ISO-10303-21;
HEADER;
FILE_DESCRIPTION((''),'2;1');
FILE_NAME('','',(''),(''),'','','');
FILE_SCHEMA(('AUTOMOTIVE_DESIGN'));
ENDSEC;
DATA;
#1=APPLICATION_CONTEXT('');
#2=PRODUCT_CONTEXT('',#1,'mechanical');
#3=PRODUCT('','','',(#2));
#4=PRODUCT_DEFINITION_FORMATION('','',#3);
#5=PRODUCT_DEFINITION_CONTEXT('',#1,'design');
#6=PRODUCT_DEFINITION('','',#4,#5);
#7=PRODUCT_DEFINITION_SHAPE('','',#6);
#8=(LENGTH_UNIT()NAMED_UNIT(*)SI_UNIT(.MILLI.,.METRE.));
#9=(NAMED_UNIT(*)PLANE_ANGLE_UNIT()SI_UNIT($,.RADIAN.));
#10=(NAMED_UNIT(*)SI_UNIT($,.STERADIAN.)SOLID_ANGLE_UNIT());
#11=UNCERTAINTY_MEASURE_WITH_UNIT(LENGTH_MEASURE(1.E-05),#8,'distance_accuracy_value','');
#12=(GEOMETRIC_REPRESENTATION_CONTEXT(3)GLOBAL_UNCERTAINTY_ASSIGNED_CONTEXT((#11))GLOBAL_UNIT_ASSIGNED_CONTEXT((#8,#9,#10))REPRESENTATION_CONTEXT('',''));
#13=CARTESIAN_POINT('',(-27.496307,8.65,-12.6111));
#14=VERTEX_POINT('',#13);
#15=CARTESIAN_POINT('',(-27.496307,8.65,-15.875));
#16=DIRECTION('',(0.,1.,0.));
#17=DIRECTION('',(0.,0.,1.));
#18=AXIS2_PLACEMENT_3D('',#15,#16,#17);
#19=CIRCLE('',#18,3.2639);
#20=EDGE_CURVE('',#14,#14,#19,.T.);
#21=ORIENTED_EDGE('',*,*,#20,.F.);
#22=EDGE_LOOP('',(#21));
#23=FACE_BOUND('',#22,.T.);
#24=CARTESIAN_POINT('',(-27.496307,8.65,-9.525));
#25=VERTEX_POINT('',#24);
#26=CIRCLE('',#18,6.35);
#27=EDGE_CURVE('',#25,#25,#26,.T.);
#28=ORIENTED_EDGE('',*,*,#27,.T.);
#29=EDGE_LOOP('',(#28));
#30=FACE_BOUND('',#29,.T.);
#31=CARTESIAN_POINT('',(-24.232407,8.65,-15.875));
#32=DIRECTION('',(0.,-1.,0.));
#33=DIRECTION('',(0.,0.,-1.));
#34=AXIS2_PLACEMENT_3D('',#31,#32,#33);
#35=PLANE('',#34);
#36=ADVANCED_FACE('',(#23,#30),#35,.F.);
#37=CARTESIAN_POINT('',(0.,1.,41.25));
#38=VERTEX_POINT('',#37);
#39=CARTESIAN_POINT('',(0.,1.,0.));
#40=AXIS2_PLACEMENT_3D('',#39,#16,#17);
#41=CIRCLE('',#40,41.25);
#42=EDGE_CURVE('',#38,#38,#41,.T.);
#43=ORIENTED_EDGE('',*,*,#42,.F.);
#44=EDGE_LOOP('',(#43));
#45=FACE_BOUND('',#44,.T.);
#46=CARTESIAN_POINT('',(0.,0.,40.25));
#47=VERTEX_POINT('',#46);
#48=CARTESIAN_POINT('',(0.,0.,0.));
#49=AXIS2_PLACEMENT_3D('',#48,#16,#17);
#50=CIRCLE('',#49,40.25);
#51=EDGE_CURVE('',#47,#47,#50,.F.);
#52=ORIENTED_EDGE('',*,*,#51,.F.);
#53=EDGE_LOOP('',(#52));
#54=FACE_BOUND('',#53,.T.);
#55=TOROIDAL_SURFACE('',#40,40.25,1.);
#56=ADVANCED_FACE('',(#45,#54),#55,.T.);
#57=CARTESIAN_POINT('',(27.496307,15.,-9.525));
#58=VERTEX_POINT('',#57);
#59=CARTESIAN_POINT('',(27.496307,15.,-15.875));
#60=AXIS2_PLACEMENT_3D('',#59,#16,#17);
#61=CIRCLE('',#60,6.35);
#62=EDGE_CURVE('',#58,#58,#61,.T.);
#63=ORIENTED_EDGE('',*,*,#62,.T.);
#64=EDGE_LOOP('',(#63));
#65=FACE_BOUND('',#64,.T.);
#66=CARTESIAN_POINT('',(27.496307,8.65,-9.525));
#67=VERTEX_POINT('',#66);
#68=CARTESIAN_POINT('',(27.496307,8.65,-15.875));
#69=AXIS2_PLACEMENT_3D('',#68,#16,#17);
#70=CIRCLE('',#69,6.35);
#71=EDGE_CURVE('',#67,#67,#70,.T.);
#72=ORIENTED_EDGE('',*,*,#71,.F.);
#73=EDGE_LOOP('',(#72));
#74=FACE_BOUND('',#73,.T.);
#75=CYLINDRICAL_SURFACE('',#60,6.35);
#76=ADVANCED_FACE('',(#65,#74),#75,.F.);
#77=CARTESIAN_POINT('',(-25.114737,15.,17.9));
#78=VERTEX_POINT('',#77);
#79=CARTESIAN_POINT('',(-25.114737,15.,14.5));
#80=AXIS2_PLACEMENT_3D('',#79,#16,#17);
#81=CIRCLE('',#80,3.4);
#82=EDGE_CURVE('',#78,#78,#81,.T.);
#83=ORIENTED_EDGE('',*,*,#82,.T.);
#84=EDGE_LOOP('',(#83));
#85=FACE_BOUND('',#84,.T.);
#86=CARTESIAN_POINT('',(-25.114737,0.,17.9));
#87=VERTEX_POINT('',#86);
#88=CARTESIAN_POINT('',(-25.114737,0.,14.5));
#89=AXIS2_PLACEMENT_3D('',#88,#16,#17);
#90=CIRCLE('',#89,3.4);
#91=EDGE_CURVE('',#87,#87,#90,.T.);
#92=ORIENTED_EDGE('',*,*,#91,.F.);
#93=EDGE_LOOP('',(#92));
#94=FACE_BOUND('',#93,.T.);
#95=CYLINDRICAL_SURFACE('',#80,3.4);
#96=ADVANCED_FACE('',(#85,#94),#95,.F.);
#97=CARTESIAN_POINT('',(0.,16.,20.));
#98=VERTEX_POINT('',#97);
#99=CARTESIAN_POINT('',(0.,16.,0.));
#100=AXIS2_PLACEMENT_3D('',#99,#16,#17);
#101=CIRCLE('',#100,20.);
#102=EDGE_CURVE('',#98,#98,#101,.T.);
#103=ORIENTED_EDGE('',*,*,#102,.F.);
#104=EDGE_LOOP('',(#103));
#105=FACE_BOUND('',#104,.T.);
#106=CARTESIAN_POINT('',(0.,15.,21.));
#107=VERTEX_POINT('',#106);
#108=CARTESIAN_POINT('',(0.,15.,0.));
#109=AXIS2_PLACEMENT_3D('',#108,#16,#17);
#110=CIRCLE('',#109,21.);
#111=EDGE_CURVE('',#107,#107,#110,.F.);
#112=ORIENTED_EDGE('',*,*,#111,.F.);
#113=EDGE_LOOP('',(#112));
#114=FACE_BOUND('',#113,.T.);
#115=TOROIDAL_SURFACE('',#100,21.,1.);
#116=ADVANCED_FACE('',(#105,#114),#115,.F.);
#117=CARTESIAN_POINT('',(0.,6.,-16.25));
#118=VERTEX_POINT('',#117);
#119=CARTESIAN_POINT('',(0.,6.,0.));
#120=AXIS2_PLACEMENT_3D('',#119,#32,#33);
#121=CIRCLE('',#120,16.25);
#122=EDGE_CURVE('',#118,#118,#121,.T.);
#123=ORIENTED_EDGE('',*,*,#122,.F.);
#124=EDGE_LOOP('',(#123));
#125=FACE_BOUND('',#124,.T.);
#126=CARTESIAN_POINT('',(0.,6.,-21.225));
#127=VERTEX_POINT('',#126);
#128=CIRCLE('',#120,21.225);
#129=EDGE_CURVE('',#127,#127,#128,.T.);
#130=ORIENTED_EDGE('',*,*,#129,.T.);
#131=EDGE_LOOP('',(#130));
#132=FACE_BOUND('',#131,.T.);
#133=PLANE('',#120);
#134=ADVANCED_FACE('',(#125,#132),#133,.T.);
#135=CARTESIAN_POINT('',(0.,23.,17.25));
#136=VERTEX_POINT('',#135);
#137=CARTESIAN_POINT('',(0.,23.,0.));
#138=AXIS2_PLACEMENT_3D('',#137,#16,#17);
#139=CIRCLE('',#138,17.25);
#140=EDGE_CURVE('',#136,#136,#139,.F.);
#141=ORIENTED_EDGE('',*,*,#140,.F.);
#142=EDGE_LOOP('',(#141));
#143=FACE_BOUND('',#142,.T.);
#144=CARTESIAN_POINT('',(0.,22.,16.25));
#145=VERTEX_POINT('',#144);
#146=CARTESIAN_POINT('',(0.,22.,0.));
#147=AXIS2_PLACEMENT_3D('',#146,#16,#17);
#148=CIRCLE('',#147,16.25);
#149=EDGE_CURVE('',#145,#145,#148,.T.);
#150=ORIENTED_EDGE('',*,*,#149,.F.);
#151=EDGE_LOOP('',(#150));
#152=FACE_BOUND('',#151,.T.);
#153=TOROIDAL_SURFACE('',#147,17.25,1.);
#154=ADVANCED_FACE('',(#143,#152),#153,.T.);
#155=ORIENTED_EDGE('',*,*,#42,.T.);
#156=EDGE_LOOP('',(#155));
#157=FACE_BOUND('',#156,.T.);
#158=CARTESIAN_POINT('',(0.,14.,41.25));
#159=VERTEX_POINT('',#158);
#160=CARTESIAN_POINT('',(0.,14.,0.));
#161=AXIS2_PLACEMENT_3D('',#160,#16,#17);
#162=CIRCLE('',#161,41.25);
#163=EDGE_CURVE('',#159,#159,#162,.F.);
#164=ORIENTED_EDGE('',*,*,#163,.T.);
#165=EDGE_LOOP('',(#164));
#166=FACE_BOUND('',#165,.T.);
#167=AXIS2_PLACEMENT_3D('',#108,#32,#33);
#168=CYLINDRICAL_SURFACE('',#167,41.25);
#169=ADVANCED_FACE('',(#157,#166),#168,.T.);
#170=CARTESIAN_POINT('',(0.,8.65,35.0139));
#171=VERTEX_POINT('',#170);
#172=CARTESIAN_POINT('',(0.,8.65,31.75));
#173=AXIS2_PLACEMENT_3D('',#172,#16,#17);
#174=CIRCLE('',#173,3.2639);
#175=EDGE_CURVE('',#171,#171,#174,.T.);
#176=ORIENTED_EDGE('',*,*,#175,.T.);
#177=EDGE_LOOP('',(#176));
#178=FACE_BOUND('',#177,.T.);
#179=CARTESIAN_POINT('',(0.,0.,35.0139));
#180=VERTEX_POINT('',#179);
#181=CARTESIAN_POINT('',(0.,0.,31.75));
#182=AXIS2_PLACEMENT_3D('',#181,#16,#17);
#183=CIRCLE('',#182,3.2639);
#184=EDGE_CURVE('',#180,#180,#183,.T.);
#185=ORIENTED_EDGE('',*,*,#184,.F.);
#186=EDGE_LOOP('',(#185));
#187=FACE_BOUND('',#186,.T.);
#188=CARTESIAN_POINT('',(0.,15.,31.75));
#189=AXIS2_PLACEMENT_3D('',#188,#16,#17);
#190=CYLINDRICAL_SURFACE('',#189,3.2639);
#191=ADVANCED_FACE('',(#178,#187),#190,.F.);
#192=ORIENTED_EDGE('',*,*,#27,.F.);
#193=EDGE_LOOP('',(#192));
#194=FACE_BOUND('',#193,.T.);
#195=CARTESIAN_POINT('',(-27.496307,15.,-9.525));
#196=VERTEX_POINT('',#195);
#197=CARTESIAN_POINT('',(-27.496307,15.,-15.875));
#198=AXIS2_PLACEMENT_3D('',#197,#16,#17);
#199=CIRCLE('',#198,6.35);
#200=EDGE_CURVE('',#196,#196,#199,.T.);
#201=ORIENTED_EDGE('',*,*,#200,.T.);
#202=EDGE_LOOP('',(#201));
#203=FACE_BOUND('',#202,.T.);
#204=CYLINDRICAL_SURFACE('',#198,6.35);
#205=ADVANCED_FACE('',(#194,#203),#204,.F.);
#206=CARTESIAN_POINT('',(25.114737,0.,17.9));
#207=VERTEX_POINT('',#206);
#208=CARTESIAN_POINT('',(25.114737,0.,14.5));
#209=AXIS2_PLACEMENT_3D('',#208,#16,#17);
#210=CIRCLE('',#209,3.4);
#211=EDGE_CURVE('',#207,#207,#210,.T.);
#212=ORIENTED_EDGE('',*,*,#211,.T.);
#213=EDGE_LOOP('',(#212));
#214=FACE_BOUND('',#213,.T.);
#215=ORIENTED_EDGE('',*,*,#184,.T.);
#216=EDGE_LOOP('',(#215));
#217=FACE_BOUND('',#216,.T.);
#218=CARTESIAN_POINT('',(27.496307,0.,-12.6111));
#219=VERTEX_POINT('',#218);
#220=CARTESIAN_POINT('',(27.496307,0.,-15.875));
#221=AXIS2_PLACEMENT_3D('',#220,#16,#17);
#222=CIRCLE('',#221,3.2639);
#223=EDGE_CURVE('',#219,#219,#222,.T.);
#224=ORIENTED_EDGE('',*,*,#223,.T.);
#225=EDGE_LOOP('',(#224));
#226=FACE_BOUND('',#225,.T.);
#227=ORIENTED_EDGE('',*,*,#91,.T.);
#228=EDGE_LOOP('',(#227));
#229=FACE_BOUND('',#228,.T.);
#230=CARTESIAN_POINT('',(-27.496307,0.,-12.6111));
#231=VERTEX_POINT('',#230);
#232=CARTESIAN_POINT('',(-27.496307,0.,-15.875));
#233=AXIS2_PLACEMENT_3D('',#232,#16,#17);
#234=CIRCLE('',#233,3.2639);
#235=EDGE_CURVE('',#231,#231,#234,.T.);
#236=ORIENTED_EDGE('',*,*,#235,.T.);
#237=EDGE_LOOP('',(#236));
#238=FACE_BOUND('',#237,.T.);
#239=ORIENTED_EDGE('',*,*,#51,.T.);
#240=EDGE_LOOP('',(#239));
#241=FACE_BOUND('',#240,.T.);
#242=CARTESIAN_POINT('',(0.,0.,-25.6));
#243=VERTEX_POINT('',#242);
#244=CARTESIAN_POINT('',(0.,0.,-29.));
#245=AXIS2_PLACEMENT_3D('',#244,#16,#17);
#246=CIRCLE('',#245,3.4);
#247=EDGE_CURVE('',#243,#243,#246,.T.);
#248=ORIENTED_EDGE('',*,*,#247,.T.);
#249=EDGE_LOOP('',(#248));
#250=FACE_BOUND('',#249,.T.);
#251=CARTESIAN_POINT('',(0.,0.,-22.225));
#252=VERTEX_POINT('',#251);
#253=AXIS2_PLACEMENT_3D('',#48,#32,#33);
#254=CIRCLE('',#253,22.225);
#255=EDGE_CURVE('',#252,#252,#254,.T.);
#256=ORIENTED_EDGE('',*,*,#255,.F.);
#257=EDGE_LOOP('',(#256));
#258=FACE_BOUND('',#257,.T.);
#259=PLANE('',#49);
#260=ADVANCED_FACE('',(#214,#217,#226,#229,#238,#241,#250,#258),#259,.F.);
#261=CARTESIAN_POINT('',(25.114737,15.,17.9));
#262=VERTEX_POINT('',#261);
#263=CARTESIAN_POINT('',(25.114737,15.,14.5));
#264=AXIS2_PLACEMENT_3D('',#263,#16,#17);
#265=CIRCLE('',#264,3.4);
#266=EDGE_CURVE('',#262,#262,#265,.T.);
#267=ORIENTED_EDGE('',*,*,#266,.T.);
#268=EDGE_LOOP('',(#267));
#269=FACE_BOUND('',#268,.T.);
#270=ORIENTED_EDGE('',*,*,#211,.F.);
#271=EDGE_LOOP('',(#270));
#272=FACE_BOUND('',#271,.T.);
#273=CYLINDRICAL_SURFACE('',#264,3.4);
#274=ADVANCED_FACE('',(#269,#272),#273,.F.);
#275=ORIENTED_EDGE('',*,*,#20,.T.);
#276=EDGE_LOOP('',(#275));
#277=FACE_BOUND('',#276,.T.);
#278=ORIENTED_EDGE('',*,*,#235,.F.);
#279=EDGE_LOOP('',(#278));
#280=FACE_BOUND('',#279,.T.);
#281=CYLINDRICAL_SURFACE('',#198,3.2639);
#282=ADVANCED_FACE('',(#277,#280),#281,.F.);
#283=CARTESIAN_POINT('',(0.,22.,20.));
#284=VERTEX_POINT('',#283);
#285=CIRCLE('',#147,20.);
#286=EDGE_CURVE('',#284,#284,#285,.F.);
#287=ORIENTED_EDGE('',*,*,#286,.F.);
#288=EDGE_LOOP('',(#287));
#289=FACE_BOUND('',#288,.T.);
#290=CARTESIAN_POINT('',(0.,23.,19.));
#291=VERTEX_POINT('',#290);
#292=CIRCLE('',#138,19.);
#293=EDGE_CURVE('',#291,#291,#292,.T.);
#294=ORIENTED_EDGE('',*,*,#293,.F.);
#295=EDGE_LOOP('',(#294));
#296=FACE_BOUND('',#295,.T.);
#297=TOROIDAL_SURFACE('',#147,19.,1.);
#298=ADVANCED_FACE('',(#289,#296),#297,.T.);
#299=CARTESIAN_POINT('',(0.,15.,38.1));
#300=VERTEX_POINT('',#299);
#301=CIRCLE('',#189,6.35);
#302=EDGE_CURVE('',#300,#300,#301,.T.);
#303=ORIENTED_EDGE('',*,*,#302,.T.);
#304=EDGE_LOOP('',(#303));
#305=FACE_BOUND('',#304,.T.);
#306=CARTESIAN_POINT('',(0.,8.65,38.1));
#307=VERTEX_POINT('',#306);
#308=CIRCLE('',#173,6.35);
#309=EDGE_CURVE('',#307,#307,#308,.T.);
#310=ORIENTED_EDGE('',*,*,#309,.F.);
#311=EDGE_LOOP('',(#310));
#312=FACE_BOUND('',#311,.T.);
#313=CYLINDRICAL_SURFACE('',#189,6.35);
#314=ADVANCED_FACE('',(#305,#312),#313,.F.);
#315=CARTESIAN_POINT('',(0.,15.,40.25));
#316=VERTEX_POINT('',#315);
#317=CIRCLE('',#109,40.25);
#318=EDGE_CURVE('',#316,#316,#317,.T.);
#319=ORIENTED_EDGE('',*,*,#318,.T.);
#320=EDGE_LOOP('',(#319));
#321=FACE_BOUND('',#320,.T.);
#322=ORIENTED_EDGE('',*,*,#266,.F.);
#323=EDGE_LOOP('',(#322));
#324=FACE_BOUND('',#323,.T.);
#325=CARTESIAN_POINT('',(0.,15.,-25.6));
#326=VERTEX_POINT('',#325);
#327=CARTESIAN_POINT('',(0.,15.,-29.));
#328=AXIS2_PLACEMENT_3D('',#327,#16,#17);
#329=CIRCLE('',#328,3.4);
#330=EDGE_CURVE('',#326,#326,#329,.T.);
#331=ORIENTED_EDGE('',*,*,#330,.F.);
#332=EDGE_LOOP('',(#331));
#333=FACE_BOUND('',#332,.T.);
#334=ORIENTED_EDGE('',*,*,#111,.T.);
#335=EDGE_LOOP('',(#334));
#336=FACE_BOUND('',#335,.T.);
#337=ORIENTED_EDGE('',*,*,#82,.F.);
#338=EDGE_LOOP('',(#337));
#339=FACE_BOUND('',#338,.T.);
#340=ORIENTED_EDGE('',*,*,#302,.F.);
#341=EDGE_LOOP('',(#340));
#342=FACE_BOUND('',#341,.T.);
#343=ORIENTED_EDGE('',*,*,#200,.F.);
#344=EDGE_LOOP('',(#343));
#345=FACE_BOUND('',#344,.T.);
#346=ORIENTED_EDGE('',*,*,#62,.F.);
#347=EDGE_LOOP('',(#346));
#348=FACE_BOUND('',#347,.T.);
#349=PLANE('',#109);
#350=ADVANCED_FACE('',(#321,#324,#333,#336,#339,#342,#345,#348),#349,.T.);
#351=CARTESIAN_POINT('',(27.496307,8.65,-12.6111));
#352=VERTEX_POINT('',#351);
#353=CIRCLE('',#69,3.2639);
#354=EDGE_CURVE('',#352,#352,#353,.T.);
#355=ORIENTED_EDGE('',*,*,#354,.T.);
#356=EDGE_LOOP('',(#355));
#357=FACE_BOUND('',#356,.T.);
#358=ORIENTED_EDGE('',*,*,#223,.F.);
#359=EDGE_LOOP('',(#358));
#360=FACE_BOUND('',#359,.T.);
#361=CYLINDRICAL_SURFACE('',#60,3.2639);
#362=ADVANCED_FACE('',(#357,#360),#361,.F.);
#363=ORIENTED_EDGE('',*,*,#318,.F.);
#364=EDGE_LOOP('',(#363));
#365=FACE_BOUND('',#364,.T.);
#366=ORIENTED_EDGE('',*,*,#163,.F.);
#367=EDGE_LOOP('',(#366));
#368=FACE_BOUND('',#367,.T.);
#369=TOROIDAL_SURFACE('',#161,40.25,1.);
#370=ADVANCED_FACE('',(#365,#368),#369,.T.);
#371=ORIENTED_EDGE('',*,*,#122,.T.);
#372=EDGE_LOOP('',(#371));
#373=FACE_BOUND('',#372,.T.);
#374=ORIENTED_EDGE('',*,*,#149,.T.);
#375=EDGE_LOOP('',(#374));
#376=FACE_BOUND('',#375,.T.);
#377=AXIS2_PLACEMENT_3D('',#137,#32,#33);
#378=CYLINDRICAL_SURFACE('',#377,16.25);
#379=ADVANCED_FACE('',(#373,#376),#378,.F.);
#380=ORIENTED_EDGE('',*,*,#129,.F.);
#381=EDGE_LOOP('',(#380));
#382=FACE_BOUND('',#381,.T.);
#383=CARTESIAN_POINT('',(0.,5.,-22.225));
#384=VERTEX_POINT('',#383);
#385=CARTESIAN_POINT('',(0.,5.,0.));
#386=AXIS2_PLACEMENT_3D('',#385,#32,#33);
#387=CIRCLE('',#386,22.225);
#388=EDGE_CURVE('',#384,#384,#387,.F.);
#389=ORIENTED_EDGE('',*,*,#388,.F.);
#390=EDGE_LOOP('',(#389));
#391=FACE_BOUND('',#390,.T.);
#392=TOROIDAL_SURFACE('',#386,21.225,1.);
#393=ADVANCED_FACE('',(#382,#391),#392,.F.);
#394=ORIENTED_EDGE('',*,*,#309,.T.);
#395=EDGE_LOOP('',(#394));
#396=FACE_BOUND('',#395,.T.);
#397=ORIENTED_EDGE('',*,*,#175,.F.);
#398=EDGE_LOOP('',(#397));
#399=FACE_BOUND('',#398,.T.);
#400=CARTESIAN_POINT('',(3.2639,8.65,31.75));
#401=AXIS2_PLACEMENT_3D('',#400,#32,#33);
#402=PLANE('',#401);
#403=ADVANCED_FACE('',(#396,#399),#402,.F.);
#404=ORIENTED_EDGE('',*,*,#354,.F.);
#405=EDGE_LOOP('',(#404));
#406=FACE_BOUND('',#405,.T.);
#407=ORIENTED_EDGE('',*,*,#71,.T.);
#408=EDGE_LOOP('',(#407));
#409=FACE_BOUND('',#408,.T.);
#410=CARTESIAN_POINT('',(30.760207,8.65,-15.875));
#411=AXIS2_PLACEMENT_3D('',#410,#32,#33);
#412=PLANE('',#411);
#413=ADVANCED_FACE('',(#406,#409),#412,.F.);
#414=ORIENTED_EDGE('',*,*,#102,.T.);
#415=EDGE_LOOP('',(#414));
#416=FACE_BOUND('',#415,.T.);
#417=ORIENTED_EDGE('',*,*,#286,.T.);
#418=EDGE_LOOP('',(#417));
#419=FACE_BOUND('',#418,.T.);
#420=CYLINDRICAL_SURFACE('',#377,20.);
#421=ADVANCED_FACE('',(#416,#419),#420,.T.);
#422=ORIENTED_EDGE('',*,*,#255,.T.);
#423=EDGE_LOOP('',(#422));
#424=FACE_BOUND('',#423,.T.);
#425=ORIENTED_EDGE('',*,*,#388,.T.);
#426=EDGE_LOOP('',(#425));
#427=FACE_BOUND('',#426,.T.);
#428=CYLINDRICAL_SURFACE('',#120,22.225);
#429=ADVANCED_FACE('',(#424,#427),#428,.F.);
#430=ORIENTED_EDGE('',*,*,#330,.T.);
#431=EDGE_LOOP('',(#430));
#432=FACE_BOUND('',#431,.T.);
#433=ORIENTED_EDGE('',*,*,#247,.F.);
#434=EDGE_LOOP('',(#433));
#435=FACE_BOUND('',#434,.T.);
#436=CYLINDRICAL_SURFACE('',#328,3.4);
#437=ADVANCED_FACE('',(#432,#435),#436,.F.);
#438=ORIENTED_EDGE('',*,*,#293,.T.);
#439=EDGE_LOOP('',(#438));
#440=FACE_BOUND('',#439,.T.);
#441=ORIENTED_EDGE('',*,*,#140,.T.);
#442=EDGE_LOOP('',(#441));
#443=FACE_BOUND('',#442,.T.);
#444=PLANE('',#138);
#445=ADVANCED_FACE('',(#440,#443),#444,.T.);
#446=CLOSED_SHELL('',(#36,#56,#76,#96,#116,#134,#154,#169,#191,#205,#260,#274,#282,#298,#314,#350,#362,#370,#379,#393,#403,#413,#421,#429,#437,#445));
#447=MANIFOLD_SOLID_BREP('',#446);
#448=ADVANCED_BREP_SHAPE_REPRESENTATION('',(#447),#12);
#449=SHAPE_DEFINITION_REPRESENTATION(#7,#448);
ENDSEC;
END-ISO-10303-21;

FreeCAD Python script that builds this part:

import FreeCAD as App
import Part
import Sketcher
Q = App.Units.Quantity


def edges_at(feature, points):
    """Names of the edges that pass closest to the given points."""
    edges = feature.Shape.Edges
    near = lambda p: min(range(len(edges)), key=lambda i: edges[i].distToShape(Part.Vertex(*p))[0])
    return sorted({f"Edge{near(p) + 1}" for p in points})

doc = App.newDocument("Part")
body = doc.addObject("PartDesign::Body", "Body")

sketch1 = body.newObject("Sketcher::SketchObject", "Sketch")
sketch1.AttachmentSupport = (doc.getObject("XZ_Plane"), [""])
sketch1.MapMode = "FlatFace"
sketch1.addGeometry(Part.Circle(App.Vector(0, 0, 0), App.Vector(0, 0, 1), 41.25), False)
sketch1.addConstraint(Sketcher.Constraint("Coincident", 0, 3, -1, 1))
sketch1.addConstraint(Sketcher.Constraint("Diameter", 0, Q("82.5 mm")))
pad1 = body.newObject("PartDesign::Pad", "Pad")
pad1.Profile = sketch1
pad1.Length = 15
pad1.Reversed = True

sketch2 = body.newObject("Sketcher::SketchObject", "Sketch001")
sketch2.AttachmentSupport = (doc.getObject("XZ_Plane"), [""])
sketch2.MapMode = "FlatFace"
sketch2.AttachmentOffset = App.Placement(App.Vector(0, 0, -15), App.Rotation())
sketch2.addGeometry(Part.Circle(App.Vector(0, 0, 0), App.Vector(0, 0, 1), 20), False)
sketch2.addGeometry(Part.Circle(App.Vector(0, 0, 0), App.Vector(0, 0, 1), 16.25), False)
sketch2.addConstraint(Sketcher.Constraint("Coincident", 0, 3, -1, 1))
sketch2.addConstraint(Sketcher.Constraint("Coincident", 1, 3, -1, 1))
sketch2.addConstraint(Sketcher.Constraint("Diameter", 0, Q("40 mm")))
sketch2.addConstraint(Sketcher.Constraint("Diameter", 1, Q("32.5 mm")))
pad2 = body.newObject("PartDesign::Pad", "Pad001")
pad2.Profile = sketch2
pad2.Length = 8
pad2.Reversed = True

sketch3 = body.newObject("Sketcher::SketchObject", "Sketch002")
sketch3.AttachmentSupport = (doc.getObject("XZ_Plane"), [""])
sketch3.MapMode = "FlatFace"
sketch3.AttachmentOffset = App.Placement(App.Vector(0, 0, -15), App.Rotation())
sketch3.addGeometry(Part.Circle(App.Vector(0, 0, 0), App.Vector(0, 0, 1), 16.25), False)
sketch3.addConstraint(Sketcher.Constraint("Coincident", 0, 3, -1, 1))
sketch3.addConstraint(Sketcher.Constraint("Diameter", 0, Q("32.5 mm")))
pocket1 = body.newObject("PartDesign::Pocket", "Pocket")
pocket1.Profile = sketch3
pocket1.Type = "ThroughAll"
pocket1.Reversed = True

sketch4 = body.newObject("Sketcher::SketchObject", "Sketch003")
sketch4.AttachmentSupport = (doc.getObject("XZ_Plane"), [""])
sketch4.MapMode = "FlatFace"
sketch4.addGeometry(Part.Circle(App.Vector(0, 0, 0), App.Vector(0, 0, 1), 22.225), False)
sketch4.addGeometry(Part.Circle(App.Vector(0, 0, 0), App.Vector(0, 0, 1), 16.25), False)
sketch4.addConstraint(Sketcher.Constraint("Coincident", 0, 3, -1, 1))
sketch4.addConstraint(Sketcher.Constraint("Coincident", 1, 3, -1, 1))
sketch4.addConstraint(Sketcher.Constraint("Diameter", 1, Q("32.5 mm")))
sketch4.addConstraint(Sketcher.Constraint("Diameter", 0, Q("44.45 mm")))
pocket2 = body.newObject("PartDesign::Pocket", "Pocket001")
pocket2.Profile = sketch4
pocket2.Length = 6

sketch5 = body.newObject("Sketcher::SketchObject", "Sketch004")
sketch5.AttachmentSupport = (doc.getObject("XZ_Plane"), [""])
sketch5.MapMode = "FlatFace"
sketch5.AttachmentOffset = App.Placement(App.Vector(0, 0, -15), App.Rotation())
sketch5.addGeometry(Part.Circle(App.Vector(27.496307, -15.875, 0), App.Vector(0, 0, 1), 3.2639), False)
sketch5.addGeometry(Part.Circle(App.Vector(0, 31.75, 0), App.Vector(0, 0, 1), 3.2639), False)
sketch5.addGeometry(Part.Circle(App.Vector(-27.496307, -15.875, 0), App.Vector(0, 0, 1), 3.2639), False)
sketch5.addConstraint(Sketcher.Constraint("Equal", 0, 1))
sketch5.addConstraint(Sketcher.Constraint("Equal", 1, 2))
sketch5.addConstraint(Sketcher.Constraint("Symmetric", 0, 3, 2, 3, -2))
sketch5.addConstraint(Sketcher.Constraint("PointOnObject", 1, 3, -2))
sketch5.addConstraint(Sketcher.Constraint("Diameter", 0, Q("6.5278 mm")))
sketch5.addConstraint(Sketcher.Constraint("DistanceY", -1, 1, 1, 3, Q("31.75 mm")))
sketch5.addConstraint(Sketcher.Constraint("DistanceY", 0, 3, -1, 1, Q("15.875 mm")))
sketch5.addConstraint(Sketcher.Constraint("DistanceX", -1, 1, 0, 3, Q("27.496307 mm")))
doc.recompute()
hole = body.newObject("PartDesign::Hole", "Hole")
hole.Profile = sketch5
hole.ThreadType = "None"
hole.Diameter = 6.5278
hole.DepthType = "ThroughAll"
hole.HoleCutType = "Counterbore"
hole.HoleCutDiameter = 12.7
hole.HoleCutDepth = 6.35
hole.Reversed = True
doc.recompute()

fillet = body.newObject("PartDesign::Fillet", "Fillet")
fillet.Base = (hole, edges_at(hole, [
    (0, 0, -41.25),
    (0, 6, 22.225),
    (0, 15, -41.25),
    (0, 23, -20),
    (0, 15, -20),
    (0, 23, -16.25),
]))
fillet.Radius = 1

sketch6 = body.newObject("Sketcher::SketchObject", "Sketch005")
sketch6.AttachmentSupport = (doc.getObject("XZ_Plane"), [""])
sketch6.MapMode = "FlatFace"
sketch6.AttachmentOffset = App.Placement(App.Vector(0, 0, -15), App.Rotation())
sketch6.addGeometry(Part.Circle(App.Vector(0, -29, 0), App.Vector(0, 0, 1), 3.4), False)
sketch6.addGeometry(Part.Circle(App.Vector(25.114737, 14.5, 0), App.Vector(0, 0, 1), 3.4), False)
sketch6.addGeometry(Part.Circle(App.Vector(-25.114737, 14.5, 0), App.Vector(0, 0, 1), 3.4), False)
sketch6.addConstraint(Sketcher.Constraint("Equal", 0, 1))
sketch6.addConstraint(Sketcher.Constraint("Equal", 1, 2))
sketch6.addConstraint(Sketcher.Constraint("Symmetric", 1, 3, 2, 3, -2))
sketch6.addConstraint(Sketcher.Constraint("PointOnObject", 0, 3, -2))
sketch6.addConstraint(Sketcher.Constraint("Diameter", 0, Q("6.8 mm")))
sketch6.addConstraint(Sketcher.Constraint("DistanceY", 0, 3, -1, 1, Q("29 mm")))
sketch6.addConstraint(Sketcher.Constraint("DistanceY", -1, 1, 1, 3, Q("14.5 mm")))
sketch6.addConstraint(Sketcher.Constraint("DistanceX", -1, 1, 1, 3, Q("25.114737 mm")))
doc.recompute()
hole2 = body.newObject("PartDesign::Hole", "Hole001")
hole2.Profile = sketch6
hole2.ThreadType = "None"
hole2.Diameter = 6.8
hole2.DepthType = "ThroughAll"
hole2.Reversed = True

doc.recompute()
